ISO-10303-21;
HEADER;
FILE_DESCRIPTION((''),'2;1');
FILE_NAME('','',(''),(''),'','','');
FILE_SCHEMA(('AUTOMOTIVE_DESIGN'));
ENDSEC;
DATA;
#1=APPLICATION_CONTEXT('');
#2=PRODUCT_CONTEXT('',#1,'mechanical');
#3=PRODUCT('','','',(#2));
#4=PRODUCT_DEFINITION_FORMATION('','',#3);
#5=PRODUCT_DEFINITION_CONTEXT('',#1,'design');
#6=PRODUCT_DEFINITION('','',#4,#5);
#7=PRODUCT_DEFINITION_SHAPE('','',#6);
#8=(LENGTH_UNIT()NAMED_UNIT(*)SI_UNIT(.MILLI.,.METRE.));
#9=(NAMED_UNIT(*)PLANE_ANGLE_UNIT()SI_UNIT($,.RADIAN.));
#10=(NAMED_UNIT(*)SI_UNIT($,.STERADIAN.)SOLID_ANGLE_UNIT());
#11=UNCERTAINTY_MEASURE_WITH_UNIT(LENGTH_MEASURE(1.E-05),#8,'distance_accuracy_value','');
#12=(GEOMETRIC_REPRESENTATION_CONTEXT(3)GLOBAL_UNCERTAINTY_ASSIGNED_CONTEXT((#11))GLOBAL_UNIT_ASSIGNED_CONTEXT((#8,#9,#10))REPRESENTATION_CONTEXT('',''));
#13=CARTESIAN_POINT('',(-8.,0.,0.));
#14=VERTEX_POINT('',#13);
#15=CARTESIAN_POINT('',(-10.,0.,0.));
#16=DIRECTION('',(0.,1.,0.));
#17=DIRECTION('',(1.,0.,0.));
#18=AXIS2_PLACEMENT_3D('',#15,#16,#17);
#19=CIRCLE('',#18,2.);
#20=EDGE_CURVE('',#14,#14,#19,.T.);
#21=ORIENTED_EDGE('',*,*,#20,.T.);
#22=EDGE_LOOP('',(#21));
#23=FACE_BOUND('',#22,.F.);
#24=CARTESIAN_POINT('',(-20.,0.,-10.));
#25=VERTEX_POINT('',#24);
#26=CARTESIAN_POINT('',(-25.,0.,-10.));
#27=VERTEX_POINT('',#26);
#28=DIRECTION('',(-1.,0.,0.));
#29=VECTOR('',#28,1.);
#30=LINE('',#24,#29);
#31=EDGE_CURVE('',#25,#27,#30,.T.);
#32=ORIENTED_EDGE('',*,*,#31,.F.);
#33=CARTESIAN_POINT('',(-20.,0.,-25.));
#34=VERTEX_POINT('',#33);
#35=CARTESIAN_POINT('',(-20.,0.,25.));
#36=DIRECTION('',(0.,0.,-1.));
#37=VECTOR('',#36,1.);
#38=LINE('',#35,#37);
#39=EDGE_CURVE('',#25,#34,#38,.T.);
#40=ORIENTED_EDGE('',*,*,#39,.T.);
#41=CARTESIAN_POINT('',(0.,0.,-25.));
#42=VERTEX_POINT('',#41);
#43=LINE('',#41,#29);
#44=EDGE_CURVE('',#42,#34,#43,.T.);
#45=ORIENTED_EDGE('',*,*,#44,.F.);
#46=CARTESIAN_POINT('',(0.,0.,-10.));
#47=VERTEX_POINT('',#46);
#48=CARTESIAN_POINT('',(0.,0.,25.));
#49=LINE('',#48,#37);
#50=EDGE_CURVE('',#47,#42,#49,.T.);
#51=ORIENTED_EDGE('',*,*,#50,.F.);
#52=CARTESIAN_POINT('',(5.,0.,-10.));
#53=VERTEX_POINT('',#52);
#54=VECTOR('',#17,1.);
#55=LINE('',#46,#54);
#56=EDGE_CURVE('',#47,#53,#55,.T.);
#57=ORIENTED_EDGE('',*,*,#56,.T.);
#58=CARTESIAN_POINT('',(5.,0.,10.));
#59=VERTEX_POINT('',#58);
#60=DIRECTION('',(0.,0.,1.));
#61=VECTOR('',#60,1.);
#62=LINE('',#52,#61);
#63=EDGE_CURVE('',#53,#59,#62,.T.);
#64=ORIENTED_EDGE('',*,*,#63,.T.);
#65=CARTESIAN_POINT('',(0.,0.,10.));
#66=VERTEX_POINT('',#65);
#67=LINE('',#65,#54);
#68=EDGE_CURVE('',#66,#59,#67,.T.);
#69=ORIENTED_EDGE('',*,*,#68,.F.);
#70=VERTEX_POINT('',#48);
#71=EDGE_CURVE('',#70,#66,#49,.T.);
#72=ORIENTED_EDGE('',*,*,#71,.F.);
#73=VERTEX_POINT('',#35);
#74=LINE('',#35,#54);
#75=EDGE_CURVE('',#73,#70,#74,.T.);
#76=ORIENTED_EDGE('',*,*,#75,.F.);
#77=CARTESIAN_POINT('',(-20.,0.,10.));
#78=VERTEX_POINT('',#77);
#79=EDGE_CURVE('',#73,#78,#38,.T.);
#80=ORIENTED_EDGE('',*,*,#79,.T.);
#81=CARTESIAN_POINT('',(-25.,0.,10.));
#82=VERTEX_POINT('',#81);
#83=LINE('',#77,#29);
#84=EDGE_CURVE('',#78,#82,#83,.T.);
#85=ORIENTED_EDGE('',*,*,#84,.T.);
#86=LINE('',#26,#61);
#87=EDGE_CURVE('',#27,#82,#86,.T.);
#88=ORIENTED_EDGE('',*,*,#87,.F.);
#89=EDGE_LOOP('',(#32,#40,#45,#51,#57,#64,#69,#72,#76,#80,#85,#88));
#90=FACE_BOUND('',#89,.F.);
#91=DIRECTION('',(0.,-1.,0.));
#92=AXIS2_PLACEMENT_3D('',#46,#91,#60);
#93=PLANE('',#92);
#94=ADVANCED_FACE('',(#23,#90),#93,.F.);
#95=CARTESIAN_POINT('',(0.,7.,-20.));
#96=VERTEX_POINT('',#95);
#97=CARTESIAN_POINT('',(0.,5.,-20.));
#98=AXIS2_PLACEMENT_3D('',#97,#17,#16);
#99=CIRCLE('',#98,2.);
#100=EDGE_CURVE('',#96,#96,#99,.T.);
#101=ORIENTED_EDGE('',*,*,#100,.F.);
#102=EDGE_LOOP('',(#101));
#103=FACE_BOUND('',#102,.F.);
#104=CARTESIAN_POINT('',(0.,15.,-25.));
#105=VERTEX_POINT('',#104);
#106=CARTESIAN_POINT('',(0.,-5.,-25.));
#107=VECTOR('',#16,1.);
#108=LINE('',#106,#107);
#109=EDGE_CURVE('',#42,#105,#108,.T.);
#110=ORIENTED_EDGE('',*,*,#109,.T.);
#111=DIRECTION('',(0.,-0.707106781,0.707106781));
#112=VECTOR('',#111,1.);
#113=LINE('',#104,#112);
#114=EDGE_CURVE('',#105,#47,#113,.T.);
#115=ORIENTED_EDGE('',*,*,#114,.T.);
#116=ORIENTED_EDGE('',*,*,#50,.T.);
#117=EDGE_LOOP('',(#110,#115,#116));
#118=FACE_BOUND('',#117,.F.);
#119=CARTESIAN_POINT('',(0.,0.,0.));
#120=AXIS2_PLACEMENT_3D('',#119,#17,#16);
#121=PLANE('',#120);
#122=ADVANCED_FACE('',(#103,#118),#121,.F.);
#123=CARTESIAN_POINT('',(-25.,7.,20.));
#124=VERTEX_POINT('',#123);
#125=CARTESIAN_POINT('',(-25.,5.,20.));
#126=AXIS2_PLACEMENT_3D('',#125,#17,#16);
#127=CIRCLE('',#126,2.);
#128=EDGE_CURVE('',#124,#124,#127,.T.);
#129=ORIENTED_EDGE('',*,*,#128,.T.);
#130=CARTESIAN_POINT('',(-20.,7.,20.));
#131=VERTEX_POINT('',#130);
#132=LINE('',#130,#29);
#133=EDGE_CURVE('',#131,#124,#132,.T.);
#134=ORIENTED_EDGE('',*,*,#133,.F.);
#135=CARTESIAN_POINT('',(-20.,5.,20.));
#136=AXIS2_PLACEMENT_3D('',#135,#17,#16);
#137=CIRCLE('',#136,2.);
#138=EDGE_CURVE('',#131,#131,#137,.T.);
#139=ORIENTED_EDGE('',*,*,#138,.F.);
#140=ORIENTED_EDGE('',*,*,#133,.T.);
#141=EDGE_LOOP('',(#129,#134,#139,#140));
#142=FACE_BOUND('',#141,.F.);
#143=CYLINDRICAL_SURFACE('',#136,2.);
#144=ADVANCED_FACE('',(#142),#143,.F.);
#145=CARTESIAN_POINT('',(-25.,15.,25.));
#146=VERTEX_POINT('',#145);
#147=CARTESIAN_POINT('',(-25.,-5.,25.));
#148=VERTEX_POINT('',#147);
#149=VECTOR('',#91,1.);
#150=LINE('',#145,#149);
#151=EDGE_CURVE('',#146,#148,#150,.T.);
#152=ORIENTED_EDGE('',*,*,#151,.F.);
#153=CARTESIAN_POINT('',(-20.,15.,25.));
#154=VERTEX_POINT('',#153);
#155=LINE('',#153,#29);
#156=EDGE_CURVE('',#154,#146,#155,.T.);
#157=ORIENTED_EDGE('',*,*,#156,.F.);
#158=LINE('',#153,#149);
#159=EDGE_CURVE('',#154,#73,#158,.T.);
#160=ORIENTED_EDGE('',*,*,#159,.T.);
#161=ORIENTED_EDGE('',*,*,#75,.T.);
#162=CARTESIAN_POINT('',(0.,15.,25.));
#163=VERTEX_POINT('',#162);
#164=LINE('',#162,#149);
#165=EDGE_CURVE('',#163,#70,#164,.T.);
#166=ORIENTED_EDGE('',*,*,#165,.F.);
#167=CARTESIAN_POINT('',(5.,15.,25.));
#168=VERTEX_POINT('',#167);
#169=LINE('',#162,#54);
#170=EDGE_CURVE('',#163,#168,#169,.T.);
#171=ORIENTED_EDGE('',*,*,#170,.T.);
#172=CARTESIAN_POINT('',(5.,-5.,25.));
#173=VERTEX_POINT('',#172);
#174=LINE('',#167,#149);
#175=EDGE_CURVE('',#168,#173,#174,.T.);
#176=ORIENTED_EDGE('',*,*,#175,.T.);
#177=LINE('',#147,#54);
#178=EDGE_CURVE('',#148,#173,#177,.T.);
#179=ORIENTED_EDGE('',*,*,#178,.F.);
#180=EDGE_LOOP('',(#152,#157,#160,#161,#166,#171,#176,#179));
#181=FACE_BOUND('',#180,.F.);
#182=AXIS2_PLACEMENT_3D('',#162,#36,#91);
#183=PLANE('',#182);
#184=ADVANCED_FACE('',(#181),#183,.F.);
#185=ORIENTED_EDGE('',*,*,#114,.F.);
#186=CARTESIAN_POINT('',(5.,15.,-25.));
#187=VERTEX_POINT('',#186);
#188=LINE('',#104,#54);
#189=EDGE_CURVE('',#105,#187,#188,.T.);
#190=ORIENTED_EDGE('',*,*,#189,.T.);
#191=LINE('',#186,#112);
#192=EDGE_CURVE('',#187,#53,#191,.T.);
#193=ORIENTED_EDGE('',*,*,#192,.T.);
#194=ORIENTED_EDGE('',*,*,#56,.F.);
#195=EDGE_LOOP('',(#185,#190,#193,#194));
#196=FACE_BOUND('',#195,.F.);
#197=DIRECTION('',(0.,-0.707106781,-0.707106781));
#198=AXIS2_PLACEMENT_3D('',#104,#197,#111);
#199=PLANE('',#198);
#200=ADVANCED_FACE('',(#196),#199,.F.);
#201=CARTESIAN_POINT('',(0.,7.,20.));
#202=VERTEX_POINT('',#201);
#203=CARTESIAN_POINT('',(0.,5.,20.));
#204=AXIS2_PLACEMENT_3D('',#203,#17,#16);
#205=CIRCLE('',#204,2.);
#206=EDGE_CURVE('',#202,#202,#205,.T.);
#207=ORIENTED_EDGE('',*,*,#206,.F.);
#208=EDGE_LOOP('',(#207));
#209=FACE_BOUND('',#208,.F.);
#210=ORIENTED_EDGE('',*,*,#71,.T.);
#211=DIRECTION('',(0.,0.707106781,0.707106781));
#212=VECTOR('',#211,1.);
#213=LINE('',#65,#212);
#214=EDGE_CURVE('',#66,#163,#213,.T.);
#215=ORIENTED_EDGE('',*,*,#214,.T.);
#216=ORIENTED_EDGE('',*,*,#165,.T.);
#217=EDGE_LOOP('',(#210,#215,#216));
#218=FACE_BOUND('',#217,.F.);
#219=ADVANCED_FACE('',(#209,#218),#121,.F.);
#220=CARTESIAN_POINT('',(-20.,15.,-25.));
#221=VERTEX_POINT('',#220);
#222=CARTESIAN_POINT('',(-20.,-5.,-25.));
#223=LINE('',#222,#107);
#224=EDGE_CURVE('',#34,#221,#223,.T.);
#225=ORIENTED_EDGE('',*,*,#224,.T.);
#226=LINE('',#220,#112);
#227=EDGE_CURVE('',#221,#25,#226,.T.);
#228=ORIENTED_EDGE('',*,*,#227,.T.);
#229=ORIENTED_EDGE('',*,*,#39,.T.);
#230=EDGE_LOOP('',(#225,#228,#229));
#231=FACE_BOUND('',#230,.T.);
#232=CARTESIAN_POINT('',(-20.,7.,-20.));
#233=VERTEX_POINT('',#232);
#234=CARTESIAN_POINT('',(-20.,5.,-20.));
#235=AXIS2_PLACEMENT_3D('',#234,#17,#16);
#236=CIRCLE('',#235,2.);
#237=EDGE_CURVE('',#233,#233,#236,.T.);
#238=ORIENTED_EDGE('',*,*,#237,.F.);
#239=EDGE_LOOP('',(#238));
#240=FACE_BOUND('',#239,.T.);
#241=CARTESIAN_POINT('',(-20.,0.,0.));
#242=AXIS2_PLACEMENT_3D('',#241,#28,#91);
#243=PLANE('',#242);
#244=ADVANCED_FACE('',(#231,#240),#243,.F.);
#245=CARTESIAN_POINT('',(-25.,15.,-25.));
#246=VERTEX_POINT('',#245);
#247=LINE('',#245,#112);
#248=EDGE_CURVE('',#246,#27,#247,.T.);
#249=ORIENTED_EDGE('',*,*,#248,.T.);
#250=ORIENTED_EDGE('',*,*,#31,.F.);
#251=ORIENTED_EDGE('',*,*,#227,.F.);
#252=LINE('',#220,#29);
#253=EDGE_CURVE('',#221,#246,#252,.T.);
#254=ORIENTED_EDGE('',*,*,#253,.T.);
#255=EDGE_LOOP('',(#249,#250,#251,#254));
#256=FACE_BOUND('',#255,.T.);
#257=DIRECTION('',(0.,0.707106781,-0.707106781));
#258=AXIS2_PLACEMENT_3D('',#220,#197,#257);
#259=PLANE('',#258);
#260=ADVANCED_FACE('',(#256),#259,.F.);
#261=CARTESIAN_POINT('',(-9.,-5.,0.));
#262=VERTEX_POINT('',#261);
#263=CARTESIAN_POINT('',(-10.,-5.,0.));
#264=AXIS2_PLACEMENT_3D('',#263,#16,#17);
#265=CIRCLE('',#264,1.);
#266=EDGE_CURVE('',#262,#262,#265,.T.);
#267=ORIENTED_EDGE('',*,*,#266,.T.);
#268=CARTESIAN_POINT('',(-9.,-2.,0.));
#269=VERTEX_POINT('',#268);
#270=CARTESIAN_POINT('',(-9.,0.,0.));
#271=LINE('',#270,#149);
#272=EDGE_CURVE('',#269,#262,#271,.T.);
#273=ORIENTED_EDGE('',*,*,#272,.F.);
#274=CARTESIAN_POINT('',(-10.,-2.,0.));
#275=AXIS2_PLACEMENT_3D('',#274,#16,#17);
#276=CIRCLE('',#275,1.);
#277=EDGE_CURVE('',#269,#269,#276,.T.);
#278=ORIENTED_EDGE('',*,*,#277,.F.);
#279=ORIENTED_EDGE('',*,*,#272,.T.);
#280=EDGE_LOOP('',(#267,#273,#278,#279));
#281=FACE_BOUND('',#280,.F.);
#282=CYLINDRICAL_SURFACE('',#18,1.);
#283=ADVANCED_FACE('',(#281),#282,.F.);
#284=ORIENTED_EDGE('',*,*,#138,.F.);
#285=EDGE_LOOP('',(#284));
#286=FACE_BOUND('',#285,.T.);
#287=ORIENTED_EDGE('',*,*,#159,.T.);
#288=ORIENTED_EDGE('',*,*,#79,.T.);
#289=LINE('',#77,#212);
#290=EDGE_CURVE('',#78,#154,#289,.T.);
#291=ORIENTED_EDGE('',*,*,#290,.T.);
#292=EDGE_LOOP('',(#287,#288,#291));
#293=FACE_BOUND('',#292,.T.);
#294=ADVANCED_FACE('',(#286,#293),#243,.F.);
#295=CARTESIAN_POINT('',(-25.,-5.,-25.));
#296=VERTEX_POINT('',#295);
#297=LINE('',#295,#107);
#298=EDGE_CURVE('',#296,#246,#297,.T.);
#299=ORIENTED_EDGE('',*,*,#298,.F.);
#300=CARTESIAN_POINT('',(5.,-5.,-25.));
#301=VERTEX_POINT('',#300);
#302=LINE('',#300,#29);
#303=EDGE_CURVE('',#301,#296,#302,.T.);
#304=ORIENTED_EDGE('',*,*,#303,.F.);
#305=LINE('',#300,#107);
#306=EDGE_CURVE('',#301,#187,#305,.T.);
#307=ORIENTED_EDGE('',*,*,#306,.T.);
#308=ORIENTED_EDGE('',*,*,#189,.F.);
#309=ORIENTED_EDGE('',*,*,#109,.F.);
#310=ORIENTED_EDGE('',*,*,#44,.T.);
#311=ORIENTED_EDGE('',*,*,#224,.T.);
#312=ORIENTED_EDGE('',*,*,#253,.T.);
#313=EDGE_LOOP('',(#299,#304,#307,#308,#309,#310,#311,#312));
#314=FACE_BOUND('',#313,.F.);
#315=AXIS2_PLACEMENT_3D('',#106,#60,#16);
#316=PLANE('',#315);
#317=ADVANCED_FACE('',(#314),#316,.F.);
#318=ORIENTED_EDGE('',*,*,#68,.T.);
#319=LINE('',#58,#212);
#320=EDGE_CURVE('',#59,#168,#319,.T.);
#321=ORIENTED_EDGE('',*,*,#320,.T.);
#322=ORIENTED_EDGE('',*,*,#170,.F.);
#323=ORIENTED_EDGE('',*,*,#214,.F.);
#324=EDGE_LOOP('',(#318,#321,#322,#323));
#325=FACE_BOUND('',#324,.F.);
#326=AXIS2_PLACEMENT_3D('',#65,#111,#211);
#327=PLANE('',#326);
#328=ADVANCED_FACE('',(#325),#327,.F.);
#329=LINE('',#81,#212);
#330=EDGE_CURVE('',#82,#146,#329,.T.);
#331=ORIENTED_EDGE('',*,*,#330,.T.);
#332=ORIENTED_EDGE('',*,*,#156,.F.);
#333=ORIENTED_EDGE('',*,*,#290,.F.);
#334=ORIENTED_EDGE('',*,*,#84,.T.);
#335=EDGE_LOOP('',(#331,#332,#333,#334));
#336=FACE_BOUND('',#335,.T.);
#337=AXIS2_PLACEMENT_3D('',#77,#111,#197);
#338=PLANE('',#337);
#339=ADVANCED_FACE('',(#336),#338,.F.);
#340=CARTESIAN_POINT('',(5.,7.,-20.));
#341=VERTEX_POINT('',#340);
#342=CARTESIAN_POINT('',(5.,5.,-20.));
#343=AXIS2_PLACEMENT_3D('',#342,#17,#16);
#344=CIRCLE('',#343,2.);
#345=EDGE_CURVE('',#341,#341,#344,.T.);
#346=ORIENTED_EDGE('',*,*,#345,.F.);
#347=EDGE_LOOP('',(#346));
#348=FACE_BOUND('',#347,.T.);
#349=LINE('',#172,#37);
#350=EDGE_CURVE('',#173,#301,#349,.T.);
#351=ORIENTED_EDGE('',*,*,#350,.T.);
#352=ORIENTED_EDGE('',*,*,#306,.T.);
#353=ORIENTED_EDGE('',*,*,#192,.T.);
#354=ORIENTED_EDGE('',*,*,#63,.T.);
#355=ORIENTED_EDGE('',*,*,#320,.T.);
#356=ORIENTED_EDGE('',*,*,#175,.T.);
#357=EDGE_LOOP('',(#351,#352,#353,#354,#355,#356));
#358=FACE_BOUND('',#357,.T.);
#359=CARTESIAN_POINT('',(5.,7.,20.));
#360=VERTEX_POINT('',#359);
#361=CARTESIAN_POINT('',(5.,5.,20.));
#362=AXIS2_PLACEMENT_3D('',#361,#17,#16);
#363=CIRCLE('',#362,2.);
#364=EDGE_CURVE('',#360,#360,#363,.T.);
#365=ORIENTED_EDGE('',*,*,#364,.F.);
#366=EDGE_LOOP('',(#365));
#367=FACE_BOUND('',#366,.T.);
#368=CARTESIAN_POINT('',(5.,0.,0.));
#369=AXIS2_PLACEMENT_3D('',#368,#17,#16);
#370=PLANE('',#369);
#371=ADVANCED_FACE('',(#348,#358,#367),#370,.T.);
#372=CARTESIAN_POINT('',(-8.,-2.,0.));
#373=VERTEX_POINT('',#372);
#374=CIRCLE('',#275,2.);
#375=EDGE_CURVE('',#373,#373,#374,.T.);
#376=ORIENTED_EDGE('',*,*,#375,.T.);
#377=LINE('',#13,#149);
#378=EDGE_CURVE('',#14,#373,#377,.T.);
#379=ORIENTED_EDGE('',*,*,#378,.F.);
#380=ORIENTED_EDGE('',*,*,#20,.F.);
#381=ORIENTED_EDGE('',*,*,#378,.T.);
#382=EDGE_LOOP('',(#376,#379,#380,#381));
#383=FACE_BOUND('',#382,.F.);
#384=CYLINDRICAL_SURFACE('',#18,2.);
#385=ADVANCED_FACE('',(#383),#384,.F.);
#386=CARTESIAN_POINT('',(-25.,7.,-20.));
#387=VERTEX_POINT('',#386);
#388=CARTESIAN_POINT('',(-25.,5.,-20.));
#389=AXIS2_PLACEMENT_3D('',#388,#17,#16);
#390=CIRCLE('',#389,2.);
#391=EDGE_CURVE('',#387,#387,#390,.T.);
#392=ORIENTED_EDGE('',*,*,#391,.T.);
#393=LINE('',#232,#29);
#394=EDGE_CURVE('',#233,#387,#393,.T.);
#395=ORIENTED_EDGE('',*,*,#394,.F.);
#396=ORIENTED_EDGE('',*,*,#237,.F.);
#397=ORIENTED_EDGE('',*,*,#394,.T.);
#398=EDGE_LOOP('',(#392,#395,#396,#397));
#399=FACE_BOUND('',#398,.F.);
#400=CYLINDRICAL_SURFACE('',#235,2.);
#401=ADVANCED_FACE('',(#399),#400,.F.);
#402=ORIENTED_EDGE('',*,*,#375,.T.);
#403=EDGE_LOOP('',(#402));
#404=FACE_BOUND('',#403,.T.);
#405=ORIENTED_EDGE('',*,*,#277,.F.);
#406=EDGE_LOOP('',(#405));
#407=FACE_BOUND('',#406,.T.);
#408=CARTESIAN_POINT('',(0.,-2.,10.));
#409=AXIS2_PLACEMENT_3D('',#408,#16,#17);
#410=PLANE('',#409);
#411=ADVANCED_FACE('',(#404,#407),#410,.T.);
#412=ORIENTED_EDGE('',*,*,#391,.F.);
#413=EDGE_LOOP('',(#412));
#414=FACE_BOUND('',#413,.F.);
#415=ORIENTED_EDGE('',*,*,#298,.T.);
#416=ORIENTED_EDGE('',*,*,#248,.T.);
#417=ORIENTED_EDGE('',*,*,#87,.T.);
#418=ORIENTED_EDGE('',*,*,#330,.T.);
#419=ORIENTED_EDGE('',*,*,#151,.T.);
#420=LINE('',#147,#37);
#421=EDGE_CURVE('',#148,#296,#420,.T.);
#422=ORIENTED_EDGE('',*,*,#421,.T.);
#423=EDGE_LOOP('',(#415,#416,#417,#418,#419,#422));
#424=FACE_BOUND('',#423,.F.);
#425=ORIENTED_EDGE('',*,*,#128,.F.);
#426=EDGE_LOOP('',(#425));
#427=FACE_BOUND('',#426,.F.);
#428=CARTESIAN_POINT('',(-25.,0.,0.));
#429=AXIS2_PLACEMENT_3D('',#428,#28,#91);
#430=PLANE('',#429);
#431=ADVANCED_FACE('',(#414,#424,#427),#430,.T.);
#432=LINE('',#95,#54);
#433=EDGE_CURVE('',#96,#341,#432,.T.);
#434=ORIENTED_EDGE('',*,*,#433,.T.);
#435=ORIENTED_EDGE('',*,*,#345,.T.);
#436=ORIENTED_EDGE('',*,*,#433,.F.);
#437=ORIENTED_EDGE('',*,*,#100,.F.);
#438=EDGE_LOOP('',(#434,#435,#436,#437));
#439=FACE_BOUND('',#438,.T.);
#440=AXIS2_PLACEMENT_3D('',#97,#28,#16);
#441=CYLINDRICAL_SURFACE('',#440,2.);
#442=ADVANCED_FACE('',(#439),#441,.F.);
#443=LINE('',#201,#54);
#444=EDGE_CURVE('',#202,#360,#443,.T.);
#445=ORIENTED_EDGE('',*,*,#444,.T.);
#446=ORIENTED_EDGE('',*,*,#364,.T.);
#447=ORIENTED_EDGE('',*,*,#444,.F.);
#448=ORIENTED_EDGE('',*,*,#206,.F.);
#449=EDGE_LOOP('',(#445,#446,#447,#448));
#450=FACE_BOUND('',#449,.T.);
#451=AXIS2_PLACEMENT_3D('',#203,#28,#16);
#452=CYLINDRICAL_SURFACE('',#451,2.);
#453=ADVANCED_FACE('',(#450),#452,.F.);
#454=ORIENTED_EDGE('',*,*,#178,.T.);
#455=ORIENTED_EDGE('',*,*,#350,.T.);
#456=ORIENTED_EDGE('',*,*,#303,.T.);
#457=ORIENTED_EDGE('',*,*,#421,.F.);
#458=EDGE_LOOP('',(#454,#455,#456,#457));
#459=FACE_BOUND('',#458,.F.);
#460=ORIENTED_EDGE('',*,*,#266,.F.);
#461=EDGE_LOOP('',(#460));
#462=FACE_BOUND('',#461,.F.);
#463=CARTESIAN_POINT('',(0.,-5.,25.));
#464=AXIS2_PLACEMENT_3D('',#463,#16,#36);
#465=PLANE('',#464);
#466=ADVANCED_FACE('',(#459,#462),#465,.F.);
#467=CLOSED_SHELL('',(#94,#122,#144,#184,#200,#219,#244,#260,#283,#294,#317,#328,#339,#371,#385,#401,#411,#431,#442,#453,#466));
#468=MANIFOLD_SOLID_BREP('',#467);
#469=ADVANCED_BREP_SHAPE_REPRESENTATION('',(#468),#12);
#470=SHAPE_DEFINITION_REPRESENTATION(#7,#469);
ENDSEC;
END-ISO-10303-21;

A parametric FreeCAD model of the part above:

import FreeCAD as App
import Part
import Sketcher

V = App.Vector


def add_polygon(sketch, points):
    """Adds a closed chain of lines whose ends are joined by coincident constraints."""
    first, n = sketch.GeometryCount, len(points)
    for a, b in zip(points, points[1:] + points[:1]):
        sketch.addGeometry(Part.LineSegment(App.Vector(*a, 0), App.Vector(*b, 0)), False)
    for i in range(n):
        sketch.addConstraint(Sketcher.Constraint("Coincident", first + i, 2, first + (i + 1) % n, 1))

doc = App.newDocument("Part")
body = doc.addObject("PartDesign::Body", "Body")

sketch1 = doc.addObject("Sketcher::SketchObject", "Sketch")
body.addObject(sketch1)
sketch1.AttachmentSupport = (doc.YZ_Plane, [""])
sketch1.MapMode = "FlatFace"
add_polygon(sketch1, [(0, 10), (15, 25), (-5, 25), (-5, -25), (15, -25), (0, -10)])
sketch1.addGeometry(Part.Circle(V(5, -20, 0), V(0, 0, 1), 2), False)
sketch1.addGeometry(Part.Circle(V(5, 20, 0), V(0, 0, 1), 2), False)
sketch1.addConstraint([
    Sketcher.Constraint("Horizontal", 1),
    Sketcher.Constraint("Vertical", 2),
    Sketcher.Constraint("Horizontal", 3),
    Sketcher.Constraint("Vertical", 5),
    Sketcher.Constraint("Equal", 6, 7),
    Sketcher.Constraint("Symmetric", 4, 2, 5, 2, -1, 1),
    Sketcher.Constraint("Symmetric", 6, 3, 7, 3, -1),
    Sketcher.Constraint("Symmetric", 0, 2, 3, 2, -1),
    Sketcher.Constraint("Perpendicular", 0, 4),
    Sketcher.Constraint("Equal", 3, 5),
    Sketcher.Constraint("Diameter", 6, 4.0),
    Sketcher.Constraint("DistanceX", 1, 2, 1, 1, 20.0),
    Sketcher.Constraint("DistanceY", 2, 2, 2, 1, 50.0),
    Sketcher.Constraint("DistanceX", -1, 1, 6, 3, 5.0),
    Sketcher.Constraint("DistanceY", 6, 3, -1, 1, 20.0),
])
pad1 = doc.addObject("PartDesign::Pad", "Pad")
body.addObject(pad1)
pad1.Profile = sketch1
pad1.Length = 5

sketch2 = doc.addObject("Sketcher::SketchObject", "Sketch001")
body.addObject(sketch2)
sketch2.AttachmentSupport = (doc.YZ_Plane, [""])
sketch2.MapMode = "FlatFace"
add_polygon(sketch2, [(-5, -25), (-5, 25), (0, 25), (0, -25)])
sketch2.addConstraint([
    Sketcher.Constraint("Vertical", 0),
    Sketcher.Constraint("Horizontal", 1),
    Sketcher.Constraint("Vertical", 2),
    Sketcher.Constraint("Horizontal", 3),
    Sketcher.Constraint("Symmetric", 1, 2, 2, 2, -1, 1),
    Sketcher.Constraint("DistanceX", 1, 1, 1, 2, 5.0),
    Sketcher.Constraint("DistanceY", 0, 1, 0, 2, 50.0),
])
pad2 = doc.addObject("PartDesign::Pad", "Pad001")
body.addObject(pad2)
pad2.Profile = sketch2
pad2.Length = 10
pad2.Reversed = True
doc.recompute()

datumplane = doc.addObject("PartDesign::Plane", "DatumPlane")
body.addObject(datumplane)
datumplane.AttachmentSupport = (doc.YZ_Plane, [""])
datumplane.MapMode = "FlatFace"
datumplane.AttachmentOffset = App.Placement(V(0, 0, -10), App.Rotation())
mirrored = doc.addObject("PartDesign::Mirrored", "Mirrored")
body.addObject(mirrored)
mirrored.TransformMode = "Transform body"
mirrored.MirrorPlane = (datumplane, [""])
body.Tip = mirrored

sketch3 = doc.addObject("Sketcher::SketchObject", "Sketch002")
body.addObject(sketch3)
sketch3.AttachmentSupport = (doc.XZ_Plane, [""])
sketch3.MapMode = "FlatFace"
sketch3.addGeometry(Part.Circle(V(-10, 0, 0), V(0, 0, 1), 2), False)
sketch3.addConstraint([
    Sketcher.Constraint("PointOnObject", 0, 3, -1),
    Sketcher.Constraint("Diameter", 0, 4.0),
    Sketcher.Constraint("DistanceX", 0, 3, -1, 1, 10.0),
])
pocket1 = doc.addObject("PartDesign::Pocket", "Pocket")
body.addObject(pocket1)
pocket1.Profile = sketch3
pocket1.Length = 2
pocket1.Reversed = True

sketch4 = doc.addObject("Sketcher::SketchObject", "Sketch003")
body.addObject(sketch4)
sketch4.AttachmentSupport = (doc.XZ_Plane, [""])
sketch4.MapMode = "FlatFace"
sketch4.addGeometry(Part.Circle(V(-10, 0, 0), V(0, 0, 1), 1), False)
sketch4.addConstraint([
    Sketcher.Constraint("PointOnObject", 0, 3, -1),
    Sketcher.Constraint("Diameter", 0, 2.0),
    Sketcher.Constraint("DistanceX", 0, 3, -1, 1, 10.0),
])
pocket2 = doc.addObject("PartDesign::Pocket", "Pocket001")
body.addObject(pocket2)
pocket2.Profile = sketch4
pocket2.Type = "ThroughAll"
pocket2.Reversed = True

doc.recompute()
